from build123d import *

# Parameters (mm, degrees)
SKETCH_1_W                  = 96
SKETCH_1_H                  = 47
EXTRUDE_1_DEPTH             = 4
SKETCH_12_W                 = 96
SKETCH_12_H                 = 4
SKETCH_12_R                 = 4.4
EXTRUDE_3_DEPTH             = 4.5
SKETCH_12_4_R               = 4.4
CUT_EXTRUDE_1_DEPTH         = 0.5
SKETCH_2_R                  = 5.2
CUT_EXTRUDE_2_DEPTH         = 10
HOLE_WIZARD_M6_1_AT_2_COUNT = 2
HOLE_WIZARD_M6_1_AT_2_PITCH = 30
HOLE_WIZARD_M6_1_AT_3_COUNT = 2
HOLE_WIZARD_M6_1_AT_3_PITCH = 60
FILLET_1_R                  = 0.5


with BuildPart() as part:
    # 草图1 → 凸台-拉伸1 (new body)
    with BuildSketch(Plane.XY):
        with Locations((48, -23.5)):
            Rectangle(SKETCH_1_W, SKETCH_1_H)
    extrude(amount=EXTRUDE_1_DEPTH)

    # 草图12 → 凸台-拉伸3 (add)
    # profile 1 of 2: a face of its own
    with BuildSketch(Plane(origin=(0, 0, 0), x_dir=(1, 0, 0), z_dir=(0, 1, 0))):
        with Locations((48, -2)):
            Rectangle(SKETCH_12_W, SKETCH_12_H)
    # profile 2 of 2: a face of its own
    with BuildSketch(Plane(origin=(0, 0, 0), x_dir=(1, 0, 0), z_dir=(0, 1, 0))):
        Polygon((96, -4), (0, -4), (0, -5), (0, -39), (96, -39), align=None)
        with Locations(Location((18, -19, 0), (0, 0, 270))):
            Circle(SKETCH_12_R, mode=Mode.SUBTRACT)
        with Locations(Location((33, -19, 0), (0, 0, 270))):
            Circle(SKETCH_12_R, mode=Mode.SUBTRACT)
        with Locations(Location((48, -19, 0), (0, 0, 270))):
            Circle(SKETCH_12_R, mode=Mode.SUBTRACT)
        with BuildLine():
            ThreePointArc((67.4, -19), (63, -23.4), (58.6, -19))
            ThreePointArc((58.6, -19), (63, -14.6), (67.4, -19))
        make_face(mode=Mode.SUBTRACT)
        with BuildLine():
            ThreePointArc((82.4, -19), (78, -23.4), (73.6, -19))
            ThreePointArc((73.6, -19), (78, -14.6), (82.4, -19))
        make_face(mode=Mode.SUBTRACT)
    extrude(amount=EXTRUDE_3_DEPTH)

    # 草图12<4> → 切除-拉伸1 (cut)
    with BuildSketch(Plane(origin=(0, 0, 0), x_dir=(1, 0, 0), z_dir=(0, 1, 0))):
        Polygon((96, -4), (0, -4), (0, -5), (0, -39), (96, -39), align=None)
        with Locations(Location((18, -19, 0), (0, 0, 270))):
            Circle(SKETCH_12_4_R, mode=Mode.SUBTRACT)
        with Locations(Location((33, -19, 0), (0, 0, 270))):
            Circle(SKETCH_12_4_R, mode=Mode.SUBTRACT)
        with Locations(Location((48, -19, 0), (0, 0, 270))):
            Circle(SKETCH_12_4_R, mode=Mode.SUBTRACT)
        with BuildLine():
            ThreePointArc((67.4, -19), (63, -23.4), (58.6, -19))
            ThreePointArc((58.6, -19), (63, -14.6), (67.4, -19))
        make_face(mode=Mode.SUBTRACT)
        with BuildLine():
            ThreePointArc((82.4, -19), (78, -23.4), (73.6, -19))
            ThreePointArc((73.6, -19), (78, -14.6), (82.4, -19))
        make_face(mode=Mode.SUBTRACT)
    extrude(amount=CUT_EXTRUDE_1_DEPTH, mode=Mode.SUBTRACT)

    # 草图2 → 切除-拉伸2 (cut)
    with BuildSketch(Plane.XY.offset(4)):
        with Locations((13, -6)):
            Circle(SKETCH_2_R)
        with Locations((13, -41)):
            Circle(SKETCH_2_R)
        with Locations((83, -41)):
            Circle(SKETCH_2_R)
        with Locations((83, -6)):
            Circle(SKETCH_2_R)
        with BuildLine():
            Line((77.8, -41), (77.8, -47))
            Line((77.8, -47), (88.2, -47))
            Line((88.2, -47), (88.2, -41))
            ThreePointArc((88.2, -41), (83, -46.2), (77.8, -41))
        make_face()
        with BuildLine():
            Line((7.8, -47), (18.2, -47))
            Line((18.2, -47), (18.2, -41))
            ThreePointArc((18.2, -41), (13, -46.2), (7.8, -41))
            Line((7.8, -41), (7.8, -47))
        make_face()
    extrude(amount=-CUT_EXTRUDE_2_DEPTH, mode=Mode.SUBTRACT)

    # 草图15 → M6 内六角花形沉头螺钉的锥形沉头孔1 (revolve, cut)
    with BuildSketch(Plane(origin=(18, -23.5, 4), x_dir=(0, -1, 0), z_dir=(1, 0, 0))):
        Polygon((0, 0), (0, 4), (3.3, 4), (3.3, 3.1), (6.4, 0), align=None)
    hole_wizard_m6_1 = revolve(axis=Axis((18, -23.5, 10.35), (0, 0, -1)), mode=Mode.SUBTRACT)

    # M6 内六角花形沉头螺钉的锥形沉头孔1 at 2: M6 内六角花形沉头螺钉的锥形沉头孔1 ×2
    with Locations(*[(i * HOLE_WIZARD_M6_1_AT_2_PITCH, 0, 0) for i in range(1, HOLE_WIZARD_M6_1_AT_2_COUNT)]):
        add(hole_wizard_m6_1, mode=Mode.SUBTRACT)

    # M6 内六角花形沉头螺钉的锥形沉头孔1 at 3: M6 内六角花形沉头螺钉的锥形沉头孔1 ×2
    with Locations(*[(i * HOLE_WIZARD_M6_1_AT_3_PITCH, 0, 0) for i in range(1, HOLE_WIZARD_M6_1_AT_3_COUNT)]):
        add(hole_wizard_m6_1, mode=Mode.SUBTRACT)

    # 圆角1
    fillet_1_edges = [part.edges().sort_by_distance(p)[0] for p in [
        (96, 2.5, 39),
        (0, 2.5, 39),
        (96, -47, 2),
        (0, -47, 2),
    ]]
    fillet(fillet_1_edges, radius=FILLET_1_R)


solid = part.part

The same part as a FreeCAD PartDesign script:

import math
import FreeCAD as App
import Part
import Sketcher
Q = App.Units.Quantity


def edges_at(feature, points):
    """Names of the edges that pass closest to the given points."""
    edges = feature.Shape.Edges
    near = lambda p: min(range(len(edges)), key=lambda i: edges[i].distToShape(Part.Vertex(*p))[0])
    return sorted({f"Edge{near(p) + 1}" for p in points})

doc = App.newDocument("Part")
params = doc.addObject("Spreadsheet::Sheet", "Params")
for row, (alias, value) in enumerate([
    ("sketch1_width", "96 mm"),
    ("sketch1_height", "47 mm"),
    ("pad1_length", "4 mm"),
    ("sketch2_diameter", "8.8 mm"),
    ("sketch2_width", "96 mm"),
    ("sketch2_height", "39 mm"),
    ("pad2_length", "4.5 mm"),
    ("sketch3_diameter", "8.8 mm"),
    ("sketch3_width", "96 mm"),
    ("sketch3_height", "35 mm"),
    ("pocket1_length", "0.5 mm"),
    ("sketch4_diameter", "10.4 mm"),
    ("sketch4_height", "6 mm"),
    ("pocket2_length", "10 mm"),
    ("sketch5_height", "4 mm"),
    ("sketch5_width", "6.4 mm"),
    ("sketch5_width2", "3.3 mm"),
    ("groove_angle", "360 deg"),
    ("linearpattern_pitch", "30 mm"),
    ("linearpattern2_pitch", "60 mm"),
    ("fillet_radius", "0.5 mm"),
], start=1):
    params.set(f"A{row}", alias)
    params.set(f"B{row}", "=" + value)
    params.setAlias(f"B{row}", alias)

body = doc.addObject("PartDesign::Body", "Body")

# Sketch on XY plane
sketch1 = doc.addObject("Sketcher::SketchObject", "Sketch")
body.addObject(sketch1)
sketch1.AttachmentSupport = (doc.XY_Plane, [""])
sketch1.MapMode = "FlatFace"
sketch1.addGeometry([
    Part.LineSegment(App.Vector(0, 0, 0), App.Vector(0, -47, 0)),
    Part.LineSegment(App.Vector(0, -47, 0), App.Vector(96, -47, 0)),
    Part.LineSegment(App.Vector(96, -47, 0), App.Vector(96, 0, 0)),
    Part.LineSegment(App.Vector(96, 0, 0), App.Vector(0, 0, 0)),
], False)
sketch1.addConstraint([
    Sketcher.Constraint("Coincident", 0, 2, 1, 1),
    Sketcher.Constraint("Coincident", 1, 2, 2, 1),
    Sketcher.Constraint("Coincident", 2, 2, 3, 1),
    Sketcher.Constraint("Coincident", 3, 2, 0, 1),
    Sketcher.Constraint("Vertical", 0),
    Sketcher.Constraint("Horizontal", 1),
    Sketcher.Constraint("Vertical", 2),
    Sketcher.Constraint("Horizontal", 3),
    Sketcher.Constraint("Coincident", 3, 2, -1, 1),
    Sketcher.Constraint("DistanceX", 1, 1, 1, 2, Q("96 mm")),
    Sketcher.Constraint("DistanceY", 0, 2, 0, 1, Q("47 mm")),
])
sketch1.setExpression("Constraints[9]", "Params.sketch1_width")
sketch1.setExpression("Constraints[10]", "Params.sketch1_height")
pad1 = doc.addObject("PartDesign::Pad", "Pad")
body.addObject(pad1)
pad1.Profile = sketch1
pad1.setExpression("Length", "Params.pad1_length")

# Sketch on XZ plane
sketch2 = doc.addObject("Sketcher::SketchObject", "Sketch001")
body.addObject(sketch2)
sketch2.AttachmentSupport = (doc.XZ_Plane, [""])
sketch2.MapMode = "FlatFace"
sketch2.addGeometry([
    Part.LineSegment(App.Vector(0, 0, 0), App.Vector(0, 39, 0)),  # 0
    Part.LineSegment(App.Vector(0, 39, 0), App.Vector(96, 39, 0)),  # 1
    Part.LineSegment(App.Vector(96, 39, 0), App.Vector(96, 0, 0)),  # 2
    Part.LineSegment(App.Vector(96, 0, 0), App.Vector(0, 0, 0)),  # 3
    Part.Circle(App.Vector(63, 19, 0), App.Vector(0, 0, 1), 4.4),  # 4
    Part.Circle(App.Vector(78, 19, 0), App.Vector(0, 0, 1), 4.4),  # 5
    Part.Circle(App.Vector(18, 19, 0), App.Vector(0, 0, 1), 4.4),  # 6
    Part.Circle(App.Vector(33, 19, 0), App.Vector(0, 0, 1), 4.4),  # 7
    Part.Circle(App.Vector(48, 19, 0), App.Vector(0, 0, 1), 4.4),  # 8
], False)
sketch2.addConstraint([
    Sketcher.Constraint("Coincident", 0, 2, 1, 1),
    Sketcher.Constraint("Coincident", 1, 2, 2, 1),
    Sketcher.Constraint("Coincident", 2, 2, 3, 1),
    Sketcher.Constraint("Coincident", 3, 2, 0, 1),
    Sketcher.Constraint("Vertical", 0),
    Sketcher.Constraint("Horizontal", 1),
    Sketcher.Constraint("Vertical", 2),
    Sketcher.Constraint("Horizontal", 3),
    Sketcher.Constraint("Coincident", 3, 2, -1, 1),
    Sketcher.Constraint("Equal", 4, 5),
    Sketcher.Constraint("Equal", 5, 6),
    Sketcher.Constraint("Equal", 6, 7),
    Sketcher.Constraint("Equal", 7, 8),
    Sketcher.Constraint("Horizontal", 4, 3, 5, 3),
    Sketcher.Constraint("Horizontal", 5, 3, 6, 3),
    Sketcher.Constraint("Horizontal", 6, 3, 7, 3),
    Sketcher.Constraint("Horizontal", 7, 3, 8, 3),
    Sketcher.Constraint("Diameter", 4, Q("8.8 mm")),
    Sketcher.Constraint("DistanceX", 1, 1, 1, 2, Q("96 mm")),
    Sketcher.Constraint("DistanceY", 0, 1, 0, 2, Q("39 mm")),
    Sketcher.Constraint("DistanceX", -1, 1, 4, 3, Q("63 mm")),
    Sketcher.Constraint("DistanceY", -1, 1, 4, 3, Q("19 mm")),
    Sketcher.Constraint("DistanceX", -1, 1, 5, 3, Q("78 mm")),
    Sketcher.Constraint("DistanceX", -1, 1, 6, 3, Q("18 mm")),
    Sketcher.Constraint("DistanceX", -1, 1, 7, 3, Q("33 mm")),
    Sketcher.Constraint("DistanceX", -1, 1, 8, 3, Q("48 mm")),
])
sketch2.setExpression("Constraints[17]", "Params.sketch2_diameter")
sketch2.setExpression("Constraints[18]", "Params.sketch2_width")
sketch2.setExpression("Constraints[19]", "Params.sketch2_height")
pad2 = doc.addObject("PartDesign::Pad", "Pad001")
body.addObject(pad2)
pad2.Profile = sketch2
pad2.setExpression("Length", "Params.pad2_length")
pad2.Reversed = True

# Sketch on XZ plane
sketch3 = doc.addObject("Sketcher::SketchObject", "Sketch002")
body.addObject(sketch3)
sketch3.AttachmentSupport = (doc.XZ_Plane, [""])
sketch3.MapMode = "FlatFace"
sketch3.addGeometry([
    Part.LineSegment(App.Vector(96, 4, 0), App.Vector(0, 4, 0)),  # 0
    Part.LineSegment(App.Vector(0, 4, 0), App.Vector(0, 39, 0)),  # 1
    Part.LineSegment(App.Vector(0, 39, 0), App.Vector(96, 39, 0)),  # 2
    Part.LineSegment(App.Vector(96, 39, 0), App.Vector(96, 4, 0)),  # 3
    Part.Circle(App.Vector(78, 19, 0), App.Vector(0, 0, 1), 4.4),  # 4
    Part.Circle(App.Vector(18, 19, 0), App.Vector(0, 0, 1), 4.4),  # 5
    Part.Circle(App.Vector(33, 19, 0), App.Vector(0, 0, 1), 4.4),  # 6
    Part.Circle(App.Vector(48, 19, 0), App.Vector(0, 0, 1), 4.4),  # 7
    Part.Circle(App.Vector(63, 19, 0), App.Vector(0, 0, 1), 4.4),  # 8
], False)
sketch3.addConstraint([
    Sketcher.Constraint("Coincident", 0, 2, 1, 1),
    Sketcher.Constraint("Coincident", 1, 2, 2, 1),
    Sketcher.Constraint("Coincident", 2, 2, 3, 1),
    Sketcher.Constraint("Coincident", 3, 2, 0, 1),
    Sketcher.Constraint("Horizontal", 0),
    Sketcher.Constraint("Vertical", 1),
    Sketcher.Constraint("Horizontal", 2),
    Sketcher.Constraint("Vertical", 3),
    Sketcher.Constraint("Equal", 4, 5),
    Sketcher.Constraint("Equal", 5, 6),
    Sketcher.Constraint("Equal", 6, 7),
    Sketcher.Constraint("Equal", 7, 8),
    Sketcher.Constraint("PointOnObject", 0, 2, -2),
    Sketcher.Constraint("Horizontal", 4, 3, 5, 3),
    Sketcher.Constraint("Horizontal", 5, 3, 6, 3),
    Sketcher.Constraint("Horizontal", 6, 3, 7, 3),
    Sketcher.Constraint("Horizontal", 7, 3, 8, 3),
    Sketcher.Constraint("Diameter", 4, Q("8.8 mm")),
    Sketcher.Constraint("DistanceX", 0, 2, 0, 1, Q("96 mm")),
    Sketcher.Constraint("DistanceY", 1, 1, 1, 2, Q("35 mm")),
    Sketcher.Constraint("DistanceX", -1, 1, 4, 3, Q("78 mm")),
    Sketcher.Constraint("DistanceY", -1, 1, 4, 3, Q("19 mm")),
    Sketcher.Constraint("DistanceX", -1, 1, 5, 3, Q("18 mm")),
    Sketcher.Constraint("DistanceX", -1, 1, 6, 3, Q("33 mm")),
    Sketcher.Constraint("DistanceX", -1, 1, 7, 3, Q("48 mm")),
    Sketcher.Constraint("DistanceX", -1, 1, 8, 3, Q("63 mm")),
    Sketcher.Constraint("DistanceY", -1, 1, 0, 2, Q("4 mm")),
])
sketch3.setExpression("Constraints[17]", "Params.sketch3_diameter")
sketch3.setExpression("Constraints[18]", "Params.sketch3_width")
sketch3.setExpression("Constraints[19]", "Params.sketch3_height")
pocket1 = doc.addObject("PartDesign::Pocket", "Pocket")
body.addObject(pocket1)
pocket1.Profile = sketch3
pocket1.setExpression("Length", "Params.pocket1_length")

# Sketch on XY plane
sketch4 = doc.addObject("Sketcher::SketchObject", "Sketch003")
body.addObject(sketch4)
sketch4.AttachmentSupport = (doc.XY_Plane, [""])
sketch4.MapMode = "FlatFace"
sketch4.AttachmentOffset = App.Placement(App.Vector(0, 0, 4), App.Rotation())
sketch4.addGeometry([
    Part.Circle(App.Vector(13, -6, 0), App.Vector(0, 0, 1), 5),  # 0
    Part.ArcOfCircle(Part.Circle(App.Vector(13, -41, 0), App.Vector(0, 0, 1), 5), math.radians(0), math.radians(180)),  # 1
    Part.LineSegment(App.Vector(8, -41, 0), App.Vector(8, -47, 0)),  # 2
    Part.LineSegment(App.Vector(8, -47, 0), App.Vector(18, -47, 0)),  # 3
    Part.LineSegment(App.Vector(18, -47, 0), App.Vector(18, -41, 0)),  # 4
    Part.ArcOfCircle(Part.Circle(App.Vector(83, -41, 0), App.Vector(0, 0, 1), 5), math.radians(0), math.radians(180)),  # 5
    Part.LineSegment(App.Vector(78, -41, 0), App.Vector(78, -47, 0)),  # 6
    Part.LineSegment(App.Vector(78, -47, 0), App.Vector(88, -47, 0)),  # 7
    Part.LineSegment(App.Vector(88, -47, 0), App.Vector(88, -41, 0)),  # 8
    Part.Circle(App.Vector(83, -6, 0), App.Vector(0, 0, 1), 5),  # 9
], False)
sketch4.addConstraint([
    Sketcher.Constraint("Tangent", 1, 2, 2, 1),
    Sketcher.Constraint("Coincident", 2, 2, 3, 1),
    Sketcher.Constraint("Coincident", 3, 2, 4, 1),
    Sketcher.Constraint("Tangent", 4, 2, 1, 1),
    Sketcher.Constraint("Tangent", 5, 2, 6, 1),
    Sketcher.Constraint("Coincident", 6, 2, 7, 1),
    Sketcher.Constraint("Coincident", 7, 2, 8, 1),
    Sketcher.Constraint("Tangent", 8, 2, 5, 1),
    Sketcher.Constraint("Vertical", 2),
    Sketcher.Constraint("Horizontal", 3),
    Sketcher.Constraint("Vertical", 4),
    Sketcher.Constraint("Vertical", 6),
    Sketcher.Constraint("Horizontal", 7),
    Sketcher.Constraint("Vertical", 8),
    Sketcher.Constraint("Equal", 0, 1),
    Sketcher.Constraint("Equal", 1, 5),
    Sketcher.Constraint("Equal", 5, 9),
    Sketcher.Constraint("Horizontal", 1, 3, 5, 3),
    Sketcher.Constraint("Horizontal", 0, 3, 9, 3),
    Sketcher.Constraint("Horizontal", 3, 2, 6, 2),
    Sketcher.Constraint("Vertical", 0, 3, 1, 3),
    Sketcher.Constraint("Vertical", 5, 3, 9, 3),
    Sketcher.Constraint("Diameter", 0, Q("10.4 mm")),
    Sketcher.Constraint("DistanceY", 2, 2, 2, 1, Q("6 mm")),
    Sketcher.Constraint("DistanceX", -1, 1, 0, 3, Q("13 mm")),
    Sketcher.Constraint("DistanceY", 0, 3, -1, 1, Q("6 mm")),
    Sketcher.Constraint("DistanceY", 1, 3, -1, 1, Q("41 mm")),
    Sketcher.Constraint("DistanceX", -1, 1, 5, 3, Q("83 mm")),
])
sketch4.setExpression("Constraints[22]", "Params.sketch4_diameter")
sketch4.setExpression("Constraints[23]", "Params.sketch4_height")
pocket2 = doc.addObject("PartDesign::Pocket", "Pocket001")
body.addObject(pocket2)
pocket2.Profile = sketch4
pocket2.setExpression("Length", "Params.pocket2_length")

# Sketch on YZ plane
sketch5 = doc.addObject("Sketcher::SketchObject", "Sketch004")
body.addObject(sketch5)
sketch5.AttachmentSupport = (doc.YZ_Plane, [""])
sketch5.MapMode = "FlatFace"
sketch5.AttachmentOffset = App.Placement(App.Vector(0, 0, 18), App.Rotation())
sketch5.addGeometry([
    Part.LineSegment(App.Vector(-23.5, 0, 0), App.Vector(-23.5, 4, 0)),  # 0
    Part.LineSegment(App.Vector(-23.5, 4, 0), App.Vector(-29.9, 4, 0)),  # 1
    Part.LineSegment(App.Vector(-29.9, 4, 0), App.Vector(-26.8, 0.9, 0)),  # 2
    Part.LineSegment(App.Vector(-26.8, 0.9, 0), App.Vector(-26.8, 0, 0)),  # 3
    Part.LineSegment(App.Vector(-26.8, 0, 0), App.Vector(-23.5, 0, 0)),  # 4
], False)
sketch5.addGeometry(Part.LineSegment(App.Vector(-23.5, 4, 0), App.Vector(-23.5, 0, 0)), True)  # axis
sketch5.addConstraint([
    Sketcher.Constraint("Coincident", 0, 2, 1, 1),
    Sketcher.Constraint("Coincident", 1, 2, 2, 1),
    Sketcher.Constraint("Coincident", 2, 2, 3, 1),
    Sketcher.Constraint("Coincident", 3, 2, 4, 1),
    Sketcher.Constraint("Coincident", 4, 2, 0, 1),
    Sketcher.Constraint("Vertical", 0),
    Sketcher.Constraint("Horizontal", 1),
    Sketcher.Constraint("Vertical", 3),
    Sketcher.Constraint("Horizontal", 4),
    Sketcher.Constraint("Vertical", 5),
    Sketcher.Constraint("Coincident", 5, 1, 0, 2),
    Sketcher.Constraint("PointOnObject", 3, 2, -1),
    Sketcher.Constraint("PointOnObject", 5, 2, -1),
    Sketcher.Constraint("DistanceY", 0, 1, 0, 2, Q("4 mm")),
    Sketcher.Constraint("Angle", 2, Q("-45 deg")),
    Sketcher.Constraint("DistanceX", 1, 2, 1, 1, Q("6.4 mm")),
    Sketcher.Constraint("DistanceX", 4, 1, 4, 2, Q("3.3 mm")),
    Sketcher.Constraint("DistanceX", 0, 2, -1, 1, Q("23.5 mm")),
])
sketch5.setExpression("Constraints[13]", "Params.sketch5_height")
sketch5.setExpression("Constraints[15]", "Params.sketch5_width")
sketch5.setExpression("Constraints[16]", "Params.sketch5_width2")
groove = doc.addObject("PartDesign::Groove", "Groove")
body.addObject(groove)
groove.Profile = sketch5
groove.ReferenceAxis = (sketch5, ["Axis0"])
groove.setExpression("Angle", "Params.groove_angle")
doc.recompute()

linearpattern = doc.addObject("PartDesign::LinearPattern", "LinearPattern")
body.addObject(linearpattern)
linearpattern.Originals = [groove]
linearpattern.Direction = (doc.X_Axis, [""])
linearpattern.Mode = "offset"
linearpattern.setExpression("Offset", "Params.linearpattern_pitch")
linearpattern.Occurrences = 2
body.Tip = linearpattern
doc.recompute()

linearpattern2 = doc.addObject("PartDesign::LinearPattern", "LinearPattern001")
body.addObject(linearpattern2)
linearpattern2.Originals = [groove]
linearpattern2.Direction = (doc.X_Axis, [""])
linearpattern2.Mode = "offset"
linearpattern2.setExpression("Offset", "Params.linearpattern2_pitch")
linearpattern2.Occurrences = 2
body.Tip = linearpattern2
doc.recompute()

fillet = doc.addObject("PartDesign::Fillet", "Fillet")
body.addObject(fillet)
fillet.Base = (linearpattern2, edges_at(linearpattern2, [
    (96, 2.5, 39),
    (0, 2.5, 39),
    (96, -47, 2),
    (0, -47, 2),
]))
fillet.setExpression("Radius", "Params.fillet_radius")

doc.recompute()
